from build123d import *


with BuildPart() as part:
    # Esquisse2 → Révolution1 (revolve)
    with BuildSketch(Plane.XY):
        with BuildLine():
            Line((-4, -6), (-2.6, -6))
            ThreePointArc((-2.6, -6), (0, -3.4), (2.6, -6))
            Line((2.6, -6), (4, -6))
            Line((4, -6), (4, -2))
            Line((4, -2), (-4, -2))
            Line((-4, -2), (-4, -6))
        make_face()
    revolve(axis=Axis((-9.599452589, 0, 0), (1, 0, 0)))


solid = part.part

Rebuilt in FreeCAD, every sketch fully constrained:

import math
import FreeCAD as App
import Part
import Sketcher
from FreeCAD import Vector
Q = App.Units.Quantity

doc = App.newDocument("Part")
params = doc.addObject("Spreadsheet::Sheet", "Params")
for row, (alias, value) in enumerate([
    ("sketch1_radius", "2.6 mm"),
    ("sketch1_width", "8 mm"),
    ("sketch1_height", "4 mm"),
    ("revolution_angle", "360 deg"),
], start=1):
    params.set(f"A{row}", alias)
    params.set(f"B{row}", "=" + value)
    params.setAlias(f"B{row}", alias)

body = doc.addObject("PartDesign::Body", "Body")

# Sketch on XY plane
sketch1 = body.newObject("Sketcher::SketchObject", "Sketch")
sketch1.AttachmentSupport = (doc.getObject("XY_Plane"), [""])
sketch1.MapMode = "FlatFace"
sketch1.addGeometry(Part.LineSegment(Vector(-4, -6, 0), Vector(-2.6, -6, 0)), False)
sketch1.addGeometry(Part.ArcOfCircle(Part.Circle(Vector(0, -6, 0), Vector(0, 0, 1), 2.6), math.radians(0), math.radians(180)), False)
sketch1.addGeometry(Part.LineSegment(Vector(2.6, -6, 0), Vector(4, -6, 0)), False)
sketch1.addGeometry(Part.LineSegment(Vector(4, -6, 0), Vector(4, -2, 0)), False)
sketch1.addGeometry(Part.LineSegment(Vector(4, -2, 0), Vector(-4, -2, 0)), False)
sketch1.addGeometry(Part.LineSegment(Vector(-4, -2, 0), Vector(-4, -6, 0)), False)
sketch1.addConstraint(Sketcher.Constraint("Coincident", 0, 2, 1, 2))
sketch1.addConstraint(Sketcher.Constraint("Coincident", 1, 1, 2, 1))
sketch1.addConstraint(Sketcher.Constraint("Coincident", 2, 2, 3, 1))
sketch1.addConstraint(Sketcher.Constraint("Coincident", 3, 2, 4, 1))
sketch1.addConstraint(Sketcher.Constraint("Coincident", 4, 2, 5, 1))
sketch1.addConstraint(Sketcher.Constraint("Coincident", 5, 2, 0, 1))
sketch1.addConstraint(Sketcher.Constraint("Horizontal", 0))
sketch1.addConstraint(Sketcher.Constraint("Horizontal", 2))
sketch1.addConstraint(Sketcher.Constraint("Vertical", 3))
sketch1.addConstraint(Sketcher.Constraint("Horizontal", 4))
sketch1.addConstraint(Sketcher.Constraint("Vertical", 5))
sketch1.addConstraint(Sketcher.Constraint("Symmetric", 0, 2, 1, 1, -2))
sketch1.addConstraint(Sketcher.Constraint("Horizontal", 1, 3, 0, 2))
sketch1.addConstraint(Sketcher.Constraint("Equal", 0, 2))
sketch1.addConstraint(Sketcher.Constraint("Radius", 1, Q("2.6 mm")))
sketch1.addConstraint(Sketcher.Constraint("DistanceX", 4, 2, 4, 1, Q("8 mm")))
sketch1.addConstraint(Sketcher.Constraint("DistanceY", 3, 1, 3, 2, Q("4 mm")))
sketch1.addConstraint(Sketcher.Constraint("DistanceY", 1, 3, -1, 1, Q("6 mm")))
sketch1.setExpression("Constraints[14]", "Params.sketch1_radius")
sketch1.setExpression("Constraints[15]", "Params.sketch1_width")
sketch1.setExpression("Constraints[16]", "Params.sketch1_height")
revolution = body.newObject("PartDesign::Revolution", "Revolution")
revolution.Profile = sketch1
revolution.ReferenceAxis = (sketch1, ["H_Axis"])
revolution.setExpression("Angle", "Params.revolution_angle")

doc.recompute()
